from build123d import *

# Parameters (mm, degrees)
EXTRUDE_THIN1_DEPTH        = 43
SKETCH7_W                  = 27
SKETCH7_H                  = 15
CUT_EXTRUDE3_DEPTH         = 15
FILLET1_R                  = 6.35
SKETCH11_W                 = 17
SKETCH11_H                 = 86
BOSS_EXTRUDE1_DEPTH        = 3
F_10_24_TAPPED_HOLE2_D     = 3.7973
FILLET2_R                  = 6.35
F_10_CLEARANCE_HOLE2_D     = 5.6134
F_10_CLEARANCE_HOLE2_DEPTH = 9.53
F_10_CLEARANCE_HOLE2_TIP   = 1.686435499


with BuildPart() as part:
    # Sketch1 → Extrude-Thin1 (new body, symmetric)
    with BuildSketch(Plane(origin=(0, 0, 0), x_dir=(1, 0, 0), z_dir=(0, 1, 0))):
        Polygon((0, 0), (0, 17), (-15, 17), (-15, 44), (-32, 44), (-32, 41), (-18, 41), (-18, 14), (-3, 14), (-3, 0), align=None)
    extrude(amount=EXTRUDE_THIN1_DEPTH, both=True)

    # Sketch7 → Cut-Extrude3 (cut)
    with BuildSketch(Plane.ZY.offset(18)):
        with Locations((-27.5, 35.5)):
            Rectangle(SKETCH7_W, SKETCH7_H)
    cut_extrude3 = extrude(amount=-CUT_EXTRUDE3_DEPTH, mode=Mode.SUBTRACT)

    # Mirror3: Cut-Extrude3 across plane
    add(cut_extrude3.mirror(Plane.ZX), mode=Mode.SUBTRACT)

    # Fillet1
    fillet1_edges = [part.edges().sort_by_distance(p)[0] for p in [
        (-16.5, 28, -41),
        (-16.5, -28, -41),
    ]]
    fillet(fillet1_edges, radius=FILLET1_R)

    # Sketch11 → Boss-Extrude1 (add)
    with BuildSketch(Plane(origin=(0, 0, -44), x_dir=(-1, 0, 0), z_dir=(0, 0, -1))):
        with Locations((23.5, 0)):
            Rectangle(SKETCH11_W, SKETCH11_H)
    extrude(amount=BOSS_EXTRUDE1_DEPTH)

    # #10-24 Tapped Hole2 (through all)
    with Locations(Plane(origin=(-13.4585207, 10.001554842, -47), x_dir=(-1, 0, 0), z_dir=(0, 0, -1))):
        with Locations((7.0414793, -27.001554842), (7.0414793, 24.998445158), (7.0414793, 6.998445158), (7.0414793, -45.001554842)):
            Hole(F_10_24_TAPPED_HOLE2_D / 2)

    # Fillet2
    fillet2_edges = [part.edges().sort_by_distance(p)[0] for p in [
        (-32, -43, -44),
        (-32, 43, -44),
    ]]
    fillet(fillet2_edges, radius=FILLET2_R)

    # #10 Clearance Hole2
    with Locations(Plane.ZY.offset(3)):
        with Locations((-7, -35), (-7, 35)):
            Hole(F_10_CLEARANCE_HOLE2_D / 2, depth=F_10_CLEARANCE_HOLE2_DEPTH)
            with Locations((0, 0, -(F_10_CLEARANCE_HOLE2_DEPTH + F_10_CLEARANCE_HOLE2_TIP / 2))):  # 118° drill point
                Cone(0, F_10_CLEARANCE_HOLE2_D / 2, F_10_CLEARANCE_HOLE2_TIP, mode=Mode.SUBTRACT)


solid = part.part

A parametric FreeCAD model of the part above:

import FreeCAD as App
import Part
import Sketcher
from FreeCAD import Vector


def edges_at(feature, points):
    """Names of the edges that pass closest to the given points."""
    edges = feature.Shape.Edges
    near = lambda p: min(range(len(edges)), key=lambda i: edges[i].distToShape(Part.Vertex(*p))[0])
    return sorted({f"Edge{near(p) + 1}" for p in points})


def add_polygon(sketch, points):
    """Adds a closed chain of lines whose ends are joined by coincident constraints."""
    first, n = sketch.GeometryCount, len(points)
    for a, b in zip(points, points[1:] + points[:1]):
        sketch.addGeometry(Part.LineSegment(App.Vector(*a, 0), App.Vector(*b, 0)), False)
    for i in range(n):
        sketch.addConstraint(Sketcher.Constraint("Coincident", first + i, 2, first + (i + 1) % n, 1))

doc = App.newDocument("Part")
body = doc.addObject("PartDesign::Body", "Body")

# Sketch on XZ plane
sketch1 = body.newObject("Sketcher::SketchObject", "Sketch")
sketch1.AttachmentSupport = (doc.getObject("XZ_Plane"), [""])
sketch1.MapMode = "FlatFace"
add_polygon(sketch1, [(0, 0), (0, -17), (-15, -17), (-15, -44), (-32, -44), (-32, -41), (-18, -41), (-18, -14), (-3, -14), (-3, 0)])  # lines 0-9
sketch1.addConstraint([
    Sketcher.Constraint("Vertical", 0),
    Sketcher.Constraint("Horizontal", 1),
    Sketcher.Constraint("Vertical", 2),
    Sketcher.Constraint("Horizontal", 3),
    Sketcher.Constraint("Vertical", 4),
    Sketcher.Constraint("Horizontal", 5),
    Sketcher.Constraint("Vertical", 6),
    Sketcher.Constraint("Horizontal", 7),
    Sketcher.Constraint("Vertical", 8),
    Sketcher.Constraint("Horizontal", 9),
    Sketcher.Constraint("Coincident", 9, 2, -1, 1),
    Sketcher.Constraint("Equal", 1, 7),
    Sketcher.Constraint("Equal", 3, 0),
    Sketcher.Constraint("Equal", 9, 4),
    Sketcher.Constraint("Equal", 2, 6),
    Sketcher.Constraint("DistanceX", 1, 2, 1, 1, 15.0),
    Sketcher.Constraint("DistanceX", 3, 2, 3, 1, 17.0),
    Sketcher.Constraint("DistanceX", 5, 1, 5, 2, 14.0),
    Sketcher.Constraint("DistanceY", 2, 2, 2, 1, 27.0),
])
pad1 = body.newObject("PartDesign::Pad", "Pad")
pad1.Profile = sketch1
pad1.Length = 86
pad1.Midplane = True

# Sketch on YZ plane
sketch2 = body.newObject("Sketcher::SketchObject", "Sketch001")
sketch2.AttachmentSupport = (doc.getObject("YZ_Plane"), [""])
sketch2.MapMode = "FlatFace"
sketch2.AttachmentOffset = App.Placement(Vector(0, 0, -18), App.Rotation())
add_polygon(sketch2, [(43, -41), (28, -41), (28, -14), (43, -14)])  # lines 0-3
sketch2.addConstraint([
    Sketcher.Constraint("Horizontal", 0),
    Sketcher.Constraint("Vertical", 1),
    Sketcher.Constraint("Horizontal", 2),
    Sketcher.Constraint("Vertical", 3),
    Sketcher.Constraint("DistanceX", 0, 2, 0, 1, 15.0),
    Sketcher.Constraint("DistanceY", 1, 1, 1, 2, 27.0),
    Sketcher.Constraint("DistanceX", -1, 1, 0, 2, 28.0),
    Sketcher.Constraint("DistanceY", 0, 2, -1, 1, 41.0),
])
pocket1 = body.newObject("PartDesign::Pocket", "Pocket")
pocket1.Profile = sketch2
pocket1.Length = 15
pocket1.Reversed = True
doc.recompute()

mirrored = body.newObject("PartDesign::Mirrored", "Mirrored")
mirrored.Originals = [pocket1]
mirrored.MirrorPlane = (doc.getObject("XZ_Plane"), [""])
body.Tip = mirrored
doc.recompute()

fillet = body.newObject("PartDesign::Fillet", "Fillet")
fillet.Base = (mirrored, edges_at(mirrored, [(-16.5, 28, -41), (-16.5, -28, -41)]))
fillet.Radius = 6.35

# Sketch on XY plane
sketch3 = body.newObject("Sketcher::SketchObject", "Sketch002")
sketch3.AttachmentSupport = (doc.getObject("XY_Plane"), [""])
sketch3.MapMode = "FlatFace"
sketch3.AttachmentOffset = App.Placement(Vector(0, 0, -44), App.Rotation())
add_polygon(sketch3, [(-15, 43), (-15, -43), (-32, -43), (-32, 43)])  # lines 0-3
sketch3.addConstraint([
    Sketcher.Constraint("Vertical", 0),
    Sketcher.Constraint("Horizontal", 1),
    Sketcher.Constraint("Vertical", 2),
    Sketcher.Constraint("Horizontal", 3),
    Sketcher.Constraint("DistanceX", 1, 2, 1, 1, 17.0),
    Sketcher.Constraint("DistanceY", 0, 2, 0, 1, 86.0),
    Sketcher.Constraint("DistanceX", 0, 2, -1, 1, 15.0),
    Sketcher.Constraint("DistanceY", 0, 2, -1, 1, 43.0),
])
pad2 = body.newObject("PartDesign::Pad", "Pad001")
pad2.Profile = sketch3
pad2.Length = 3
pad2.Reversed = True

# Sketch on XY plane
sketch4 = body.newObject("Sketcher::SketchObject", "Sketch003")
sketch4.AttachmentSupport = (doc.getObject("XY_Plane"), [""])
sketch4.MapMode = "FlatFace"
sketch4.AttachmentOffset = App.Placement(Vector(0, 0, -47), App.Rotation())
sketch4.addGeometry([
    Part.Circle(Vector(-20.5, -17, 0), Vector(0, 0, 1), 1.9),
    Part.Circle(Vector(-20.5, 35, 0), Vector(0, 0, 1), 1.9),
    Part.Circle(Vector(-20.5, 17, 0), Vector(0, 0, 1), 1.9),
    Part.Circle(Vector(-20.5, -35, 0), Vector(0, 0, 1), 1.9),
], False)
sketch4.addConstraint([
    Sketcher.Constraint("Equal", 0, 1),
    Sketcher.Constraint("Equal", 1, 2),
    Sketcher.Constraint("Equal", 2, 3),
    Sketcher.Constraint("Symmetric", 0, 3, 2, 3, -1),
    Sketcher.Constraint("Symmetric", 1, 3, 3, 3, -1),
    Sketcher.Constraint("Vertical", 0, 3, 1, 3),
    Sketcher.Constraint("DistanceY", 0, 3, -1, 1, 17.0),
    Sketcher.Constraint("DistanceY", -1, 1, 1, 3, 35.0),
    Sketcher.Constraint("Diameter", 0, 3.7973),
    Sketcher.Constraint("DistanceX", 0, 3, -1, 1, 20.5),
])
doc.recompute()
hole = body.newObject("PartDesign::Hole", "Hole")
hole.Profile = sketch4
hole.ThreadType = "None"
hole.Diameter = 3.7973
hole.DepthType = "ThroughAll"
hole.Reversed = True
doc.recompute()

fillet2 = body.newObject("PartDesign::Fillet", "Fillet001")
fillet2.Base = (hole, edges_at(hole, [(-32, -43, -44), (-32, 43, -44)]))
fillet2.Radius = 6.35

# Sketch on YZ plane
sketch5 = body.newObject("Sketcher::SketchObject", "Sketch004")
sketch5.AttachmentSupport = (doc.getObject("YZ_Plane"), [""])
sketch5.MapMode = "FlatFace"
sketch5.AttachmentOffset = App.Placement(Vector(0, 0, -3), App.Rotation())
sketch5.addGeometry([
    Part.Circle(Vector(-35, -7, 0), Vector(0, 0, 1), 2.8),
    Part.Circle(Vector(35, -7, 0), Vector(0, 0, 1), 2.8),
], False)
sketch5.addConstraint([
    Sketcher.Constraint("Equal", 0, 1),
    Sketcher.Constraint("Symmetric", 0, 3, 1, 3, -2),
    Sketcher.Constraint("DistanceX", 0, 3, -1, 1, 35.0),
    Sketcher.Constraint("DistanceY", 0, 3, -1, 1, 7.0),
    Sketcher.Constraint("Diameter", 0, 5.6134),
])
doc.recompute()
hole2 = body.newObject("PartDesign::Hole", "Hole001")
hole2.Profile = sketch5
hole2.ThreadType = "None"
hole2.Diameter = 5.6134
hole2.DepthType = "Dimension"
hole2.Depth = 9.53
hole2.DrillPoint = "Angled"
hole2.DrillPointAngle = 118
hole2.Reversed = True

doc.recompute()
